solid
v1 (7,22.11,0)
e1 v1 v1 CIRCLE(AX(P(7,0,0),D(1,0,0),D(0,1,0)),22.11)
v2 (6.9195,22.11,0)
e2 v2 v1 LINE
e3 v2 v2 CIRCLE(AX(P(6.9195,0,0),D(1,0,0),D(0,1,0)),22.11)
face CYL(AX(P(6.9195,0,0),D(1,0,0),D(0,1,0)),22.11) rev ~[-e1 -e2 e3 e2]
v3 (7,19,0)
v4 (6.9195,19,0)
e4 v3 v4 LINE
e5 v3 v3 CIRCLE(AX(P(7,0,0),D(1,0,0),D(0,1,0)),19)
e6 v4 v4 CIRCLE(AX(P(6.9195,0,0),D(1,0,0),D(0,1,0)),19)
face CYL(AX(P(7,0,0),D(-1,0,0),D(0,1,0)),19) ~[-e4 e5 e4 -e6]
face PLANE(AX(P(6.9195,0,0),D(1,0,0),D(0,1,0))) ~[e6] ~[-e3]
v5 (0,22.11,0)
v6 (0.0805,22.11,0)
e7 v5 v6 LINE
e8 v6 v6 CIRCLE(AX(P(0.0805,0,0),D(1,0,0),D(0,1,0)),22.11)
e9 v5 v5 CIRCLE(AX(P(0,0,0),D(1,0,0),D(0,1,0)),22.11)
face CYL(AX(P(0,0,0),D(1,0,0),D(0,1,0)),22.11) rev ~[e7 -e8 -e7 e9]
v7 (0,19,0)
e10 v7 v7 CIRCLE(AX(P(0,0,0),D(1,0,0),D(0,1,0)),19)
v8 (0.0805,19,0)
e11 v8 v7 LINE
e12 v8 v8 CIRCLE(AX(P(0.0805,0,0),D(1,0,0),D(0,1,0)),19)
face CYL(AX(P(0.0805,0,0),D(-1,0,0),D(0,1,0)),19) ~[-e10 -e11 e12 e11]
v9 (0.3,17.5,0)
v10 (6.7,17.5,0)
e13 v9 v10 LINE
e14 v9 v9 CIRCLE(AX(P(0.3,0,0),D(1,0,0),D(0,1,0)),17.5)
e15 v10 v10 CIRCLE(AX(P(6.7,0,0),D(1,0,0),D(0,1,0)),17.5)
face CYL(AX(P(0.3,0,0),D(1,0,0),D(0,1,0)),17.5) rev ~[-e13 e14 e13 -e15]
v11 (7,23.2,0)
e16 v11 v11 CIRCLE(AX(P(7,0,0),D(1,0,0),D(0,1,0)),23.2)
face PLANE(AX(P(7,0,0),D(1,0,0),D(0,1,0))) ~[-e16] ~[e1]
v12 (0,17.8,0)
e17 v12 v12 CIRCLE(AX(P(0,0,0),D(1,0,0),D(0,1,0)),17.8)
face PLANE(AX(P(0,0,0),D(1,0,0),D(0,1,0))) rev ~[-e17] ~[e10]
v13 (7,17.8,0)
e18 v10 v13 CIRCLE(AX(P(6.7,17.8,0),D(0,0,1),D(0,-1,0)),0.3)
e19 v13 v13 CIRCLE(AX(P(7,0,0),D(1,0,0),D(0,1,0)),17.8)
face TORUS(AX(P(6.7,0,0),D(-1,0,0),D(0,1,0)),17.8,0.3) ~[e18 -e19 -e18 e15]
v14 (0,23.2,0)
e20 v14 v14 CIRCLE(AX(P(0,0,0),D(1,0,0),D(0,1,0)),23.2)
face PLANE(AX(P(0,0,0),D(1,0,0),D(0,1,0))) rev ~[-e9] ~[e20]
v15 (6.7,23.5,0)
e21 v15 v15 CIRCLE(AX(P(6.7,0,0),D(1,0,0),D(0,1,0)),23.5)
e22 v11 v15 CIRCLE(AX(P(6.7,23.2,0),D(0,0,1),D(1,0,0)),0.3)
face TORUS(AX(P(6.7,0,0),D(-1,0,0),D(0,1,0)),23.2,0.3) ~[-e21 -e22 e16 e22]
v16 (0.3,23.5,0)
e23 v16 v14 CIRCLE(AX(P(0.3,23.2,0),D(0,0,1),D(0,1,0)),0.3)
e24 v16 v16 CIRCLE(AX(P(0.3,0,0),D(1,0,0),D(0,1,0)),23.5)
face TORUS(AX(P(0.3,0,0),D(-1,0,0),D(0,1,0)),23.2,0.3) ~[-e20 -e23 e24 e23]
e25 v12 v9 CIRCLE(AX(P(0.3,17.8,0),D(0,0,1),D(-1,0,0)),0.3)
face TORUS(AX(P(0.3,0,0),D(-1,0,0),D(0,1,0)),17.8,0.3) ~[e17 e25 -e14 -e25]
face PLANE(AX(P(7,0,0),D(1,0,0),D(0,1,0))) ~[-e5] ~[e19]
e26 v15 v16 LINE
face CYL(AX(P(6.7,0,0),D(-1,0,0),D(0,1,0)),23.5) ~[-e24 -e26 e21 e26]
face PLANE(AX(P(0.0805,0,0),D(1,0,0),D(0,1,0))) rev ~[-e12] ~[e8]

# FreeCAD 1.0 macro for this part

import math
import FreeCAD as App
import Part
import Sketcher
Q = App.Units.Quantity

doc = App.newDocument("Part")
body = doc.addObject("PartDesign::Body", "Body")

sketch1 = body.newObject("Sketcher::SketchObject", "Sketch")
sketch1.AttachmentSupport = (doc.getObject("XY_Plane"), [""])
sketch1.MapMode = "FlatFace"
sketch1.addGeometry([
    Part.LineSegment(App.Vector(0, 19, 0), App.Vector(0, 17.8, 0)),
    Part.ArcOfCircle(Part.Circle(App.Vector(0.3, 17.8, 0), App.Vector(0, 0, 1), 0.3), math.radians(180), math.radians(270)),
    Part.LineSegment(App.Vector(0.3, 17.5, 0), App.Vector(6.7, 17.5, 0)),
    Part.ArcOfCircle(Part.Circle(App.Vector(6.7, 17.8, 0), App.Vector(0, 0, 1), 0.3), math.radians(-90), math.radians(0)),
    Part.LineSegment(App.Vector(7, 17.8, 0), App.Vector(7, 19, 0)),
    Part.LineSegment(App.Vector(7, 19, 0), App.Vector(6.9195, 19, 0)),
    Part.LineSegment(App.Vector(6.9195, 19, 0), App.Vector(6.9195, 22.11, 0)),
    Part.LineSegment(App.Vector(6.9195, 22.11, 0), App.Vector(7, 22.11, 0)),
    Part.LineSegment(App.Vector(7, 22.11, 0), App.Vector(7, 23.2, 0)),
    Part.ArcOfCircle(Part.Circle(App.Vector(6.7, 23.2, 0), App.Vector(0, 0, 1), 0.3), math.radians(0), math.radians(90)),
    Part.LineSegment(App.Vector(6.7, 23.5, 0), App.Vector(0.3, 23.5, 0)),
    Part.ArcOfCircle(Part.Circle(App.Vector(0.3, 23.2, 0), App.Vector(0, 0, 1), 0.3), math.radians(90), math.radians(180)),
    Part.LineSegment(App.Vector(0, 23.2, 0), App.Vector(0, 22.11, 0)),
    Part.LineSegment(App.Vector(0, 22.11, 0), App.Vector(0.0805, 22.11, 0)),
    Part.LineSegment(App.Vector(0.0805, 22.11, 0), App.Vector(0.0805, 19, 0)),
    Part.LineSegment(App.Vector(0.0805, 19, 0), App.Vector(0, 19, 0)),
], False)
sketch1.addConstraint([
    Sketcher.Constraint("Tangent", 0, 2, 1, 1),
    Sketcher.Constraint("Tangent", 1, 2, 2, 1),
    Sketcher.Constraint("Tangent", 2, 2, 3, 1),
    Sketcher.Constraint("Tangent", 3, 2, 4, 1),
    Sketcher.Constraint("Coincident", 4, 2, 5, 1),
    Sketcher.Constraint("Coincident", 5, 2, 6, 1),
    Sketcher.Constraint("Coincident", 6, 2, 7, 1),
    Sketcher.Constraint("Coincident", 7, 2, 8, 1),
    Sketcher.Constraint("Tangent", 8, 2, 9, 1),
    Sketcher.Constraint("Tangent", 9, 2, 10, 1),
    Sketcher.Constraint("Tangent", 10, 2, 11, 1),
    Sketcher.Constraint("Tangent", 11, 2, 12, 1),
    Sketcher.Constraint("Coincident", 12, 2, 13, 1),
    Sketcher.Constraint("Coincident", 13, 2, 14, 1),
    Sketcher.Constraint("Coincident", 14, 2, 15, 1),
    Sketcher.Constraint("Coincident", 15, 2, 0, 1),
    Sketcher.Constraint("Vertical", 0),
    Sketcher.Constraint("Horizontal", 2),
    Sketcher.Constraint("Vertical", 4),
    Sketcher.Constraint("Horizontal", 5),
    Sketcher.Constraint("Vertical", 6),
    Sketcher.Constraint("Horizontal", 7),
    Sketcher.Constraint("Vertical", 8),
    Sketcher.Constraint("Horizontal", 10),
    Sketcher.Constraint("Vertical", 12),
    Sketcher.Constraint("Horizontal", 13),
    Sketcher.Constraint("Vertical", 14),
    Sketcher.Constraint("Horizontal", 15),
    Sketcher.Constraint("Equal", 1, 3),
    Sketcher.Constraint("Equal", 3, 9),
    Sketcher.Constraint("Equal", 9, 11),
    Sketcher.Constraint("PointOnObject", 0, 2, -2),
    Sketcher.Constraint("PointOnObject", 11, 2, -2),
    Sketcher.Constraint("Horizontal", 7, 2, 12, 2),
    Sketcher.Constraint("Horizontal", 5, 2, 14, 2),
    Sketcher.Constraint("Vertical", 3, 3, 9, 3),
    Sketcher.Constraint("Equal", 7, 13),
    Sketcher.Constraint("Radius", 1, Q("0.3 mm")),
    Sketcher.Constraint("DistanceX", 2, 1, 2, 2, Q("6.4 mm")),
    Sketcher.Constraint("DistanceY", 0, 2, 0, 1, Q("1.2 mm")),
    Sketcher.Constraint("DistanceY", -1, 1, 4, 2, Q("19 mm")),
    Sketcher.Constraint("DistanceY", 1, 2, 10, 2, Q("6 mm")),
    Sketcher.Constraint("DistanceY", 6, 1, 6, 2, Q("3.11 mm")),
    Sketcher.Constraint("DistanceX", 5, 2, 5, 1, Q("0.0805 mm")),
])
revolution = body.newObject("PartDesign::Revolution", "Revolution")
revolution.Profile = sketch1
revolution.ReferenceAxis = (sketch1, ["H_Axis"])
revolution.Angle = 360

doc.recompute()
